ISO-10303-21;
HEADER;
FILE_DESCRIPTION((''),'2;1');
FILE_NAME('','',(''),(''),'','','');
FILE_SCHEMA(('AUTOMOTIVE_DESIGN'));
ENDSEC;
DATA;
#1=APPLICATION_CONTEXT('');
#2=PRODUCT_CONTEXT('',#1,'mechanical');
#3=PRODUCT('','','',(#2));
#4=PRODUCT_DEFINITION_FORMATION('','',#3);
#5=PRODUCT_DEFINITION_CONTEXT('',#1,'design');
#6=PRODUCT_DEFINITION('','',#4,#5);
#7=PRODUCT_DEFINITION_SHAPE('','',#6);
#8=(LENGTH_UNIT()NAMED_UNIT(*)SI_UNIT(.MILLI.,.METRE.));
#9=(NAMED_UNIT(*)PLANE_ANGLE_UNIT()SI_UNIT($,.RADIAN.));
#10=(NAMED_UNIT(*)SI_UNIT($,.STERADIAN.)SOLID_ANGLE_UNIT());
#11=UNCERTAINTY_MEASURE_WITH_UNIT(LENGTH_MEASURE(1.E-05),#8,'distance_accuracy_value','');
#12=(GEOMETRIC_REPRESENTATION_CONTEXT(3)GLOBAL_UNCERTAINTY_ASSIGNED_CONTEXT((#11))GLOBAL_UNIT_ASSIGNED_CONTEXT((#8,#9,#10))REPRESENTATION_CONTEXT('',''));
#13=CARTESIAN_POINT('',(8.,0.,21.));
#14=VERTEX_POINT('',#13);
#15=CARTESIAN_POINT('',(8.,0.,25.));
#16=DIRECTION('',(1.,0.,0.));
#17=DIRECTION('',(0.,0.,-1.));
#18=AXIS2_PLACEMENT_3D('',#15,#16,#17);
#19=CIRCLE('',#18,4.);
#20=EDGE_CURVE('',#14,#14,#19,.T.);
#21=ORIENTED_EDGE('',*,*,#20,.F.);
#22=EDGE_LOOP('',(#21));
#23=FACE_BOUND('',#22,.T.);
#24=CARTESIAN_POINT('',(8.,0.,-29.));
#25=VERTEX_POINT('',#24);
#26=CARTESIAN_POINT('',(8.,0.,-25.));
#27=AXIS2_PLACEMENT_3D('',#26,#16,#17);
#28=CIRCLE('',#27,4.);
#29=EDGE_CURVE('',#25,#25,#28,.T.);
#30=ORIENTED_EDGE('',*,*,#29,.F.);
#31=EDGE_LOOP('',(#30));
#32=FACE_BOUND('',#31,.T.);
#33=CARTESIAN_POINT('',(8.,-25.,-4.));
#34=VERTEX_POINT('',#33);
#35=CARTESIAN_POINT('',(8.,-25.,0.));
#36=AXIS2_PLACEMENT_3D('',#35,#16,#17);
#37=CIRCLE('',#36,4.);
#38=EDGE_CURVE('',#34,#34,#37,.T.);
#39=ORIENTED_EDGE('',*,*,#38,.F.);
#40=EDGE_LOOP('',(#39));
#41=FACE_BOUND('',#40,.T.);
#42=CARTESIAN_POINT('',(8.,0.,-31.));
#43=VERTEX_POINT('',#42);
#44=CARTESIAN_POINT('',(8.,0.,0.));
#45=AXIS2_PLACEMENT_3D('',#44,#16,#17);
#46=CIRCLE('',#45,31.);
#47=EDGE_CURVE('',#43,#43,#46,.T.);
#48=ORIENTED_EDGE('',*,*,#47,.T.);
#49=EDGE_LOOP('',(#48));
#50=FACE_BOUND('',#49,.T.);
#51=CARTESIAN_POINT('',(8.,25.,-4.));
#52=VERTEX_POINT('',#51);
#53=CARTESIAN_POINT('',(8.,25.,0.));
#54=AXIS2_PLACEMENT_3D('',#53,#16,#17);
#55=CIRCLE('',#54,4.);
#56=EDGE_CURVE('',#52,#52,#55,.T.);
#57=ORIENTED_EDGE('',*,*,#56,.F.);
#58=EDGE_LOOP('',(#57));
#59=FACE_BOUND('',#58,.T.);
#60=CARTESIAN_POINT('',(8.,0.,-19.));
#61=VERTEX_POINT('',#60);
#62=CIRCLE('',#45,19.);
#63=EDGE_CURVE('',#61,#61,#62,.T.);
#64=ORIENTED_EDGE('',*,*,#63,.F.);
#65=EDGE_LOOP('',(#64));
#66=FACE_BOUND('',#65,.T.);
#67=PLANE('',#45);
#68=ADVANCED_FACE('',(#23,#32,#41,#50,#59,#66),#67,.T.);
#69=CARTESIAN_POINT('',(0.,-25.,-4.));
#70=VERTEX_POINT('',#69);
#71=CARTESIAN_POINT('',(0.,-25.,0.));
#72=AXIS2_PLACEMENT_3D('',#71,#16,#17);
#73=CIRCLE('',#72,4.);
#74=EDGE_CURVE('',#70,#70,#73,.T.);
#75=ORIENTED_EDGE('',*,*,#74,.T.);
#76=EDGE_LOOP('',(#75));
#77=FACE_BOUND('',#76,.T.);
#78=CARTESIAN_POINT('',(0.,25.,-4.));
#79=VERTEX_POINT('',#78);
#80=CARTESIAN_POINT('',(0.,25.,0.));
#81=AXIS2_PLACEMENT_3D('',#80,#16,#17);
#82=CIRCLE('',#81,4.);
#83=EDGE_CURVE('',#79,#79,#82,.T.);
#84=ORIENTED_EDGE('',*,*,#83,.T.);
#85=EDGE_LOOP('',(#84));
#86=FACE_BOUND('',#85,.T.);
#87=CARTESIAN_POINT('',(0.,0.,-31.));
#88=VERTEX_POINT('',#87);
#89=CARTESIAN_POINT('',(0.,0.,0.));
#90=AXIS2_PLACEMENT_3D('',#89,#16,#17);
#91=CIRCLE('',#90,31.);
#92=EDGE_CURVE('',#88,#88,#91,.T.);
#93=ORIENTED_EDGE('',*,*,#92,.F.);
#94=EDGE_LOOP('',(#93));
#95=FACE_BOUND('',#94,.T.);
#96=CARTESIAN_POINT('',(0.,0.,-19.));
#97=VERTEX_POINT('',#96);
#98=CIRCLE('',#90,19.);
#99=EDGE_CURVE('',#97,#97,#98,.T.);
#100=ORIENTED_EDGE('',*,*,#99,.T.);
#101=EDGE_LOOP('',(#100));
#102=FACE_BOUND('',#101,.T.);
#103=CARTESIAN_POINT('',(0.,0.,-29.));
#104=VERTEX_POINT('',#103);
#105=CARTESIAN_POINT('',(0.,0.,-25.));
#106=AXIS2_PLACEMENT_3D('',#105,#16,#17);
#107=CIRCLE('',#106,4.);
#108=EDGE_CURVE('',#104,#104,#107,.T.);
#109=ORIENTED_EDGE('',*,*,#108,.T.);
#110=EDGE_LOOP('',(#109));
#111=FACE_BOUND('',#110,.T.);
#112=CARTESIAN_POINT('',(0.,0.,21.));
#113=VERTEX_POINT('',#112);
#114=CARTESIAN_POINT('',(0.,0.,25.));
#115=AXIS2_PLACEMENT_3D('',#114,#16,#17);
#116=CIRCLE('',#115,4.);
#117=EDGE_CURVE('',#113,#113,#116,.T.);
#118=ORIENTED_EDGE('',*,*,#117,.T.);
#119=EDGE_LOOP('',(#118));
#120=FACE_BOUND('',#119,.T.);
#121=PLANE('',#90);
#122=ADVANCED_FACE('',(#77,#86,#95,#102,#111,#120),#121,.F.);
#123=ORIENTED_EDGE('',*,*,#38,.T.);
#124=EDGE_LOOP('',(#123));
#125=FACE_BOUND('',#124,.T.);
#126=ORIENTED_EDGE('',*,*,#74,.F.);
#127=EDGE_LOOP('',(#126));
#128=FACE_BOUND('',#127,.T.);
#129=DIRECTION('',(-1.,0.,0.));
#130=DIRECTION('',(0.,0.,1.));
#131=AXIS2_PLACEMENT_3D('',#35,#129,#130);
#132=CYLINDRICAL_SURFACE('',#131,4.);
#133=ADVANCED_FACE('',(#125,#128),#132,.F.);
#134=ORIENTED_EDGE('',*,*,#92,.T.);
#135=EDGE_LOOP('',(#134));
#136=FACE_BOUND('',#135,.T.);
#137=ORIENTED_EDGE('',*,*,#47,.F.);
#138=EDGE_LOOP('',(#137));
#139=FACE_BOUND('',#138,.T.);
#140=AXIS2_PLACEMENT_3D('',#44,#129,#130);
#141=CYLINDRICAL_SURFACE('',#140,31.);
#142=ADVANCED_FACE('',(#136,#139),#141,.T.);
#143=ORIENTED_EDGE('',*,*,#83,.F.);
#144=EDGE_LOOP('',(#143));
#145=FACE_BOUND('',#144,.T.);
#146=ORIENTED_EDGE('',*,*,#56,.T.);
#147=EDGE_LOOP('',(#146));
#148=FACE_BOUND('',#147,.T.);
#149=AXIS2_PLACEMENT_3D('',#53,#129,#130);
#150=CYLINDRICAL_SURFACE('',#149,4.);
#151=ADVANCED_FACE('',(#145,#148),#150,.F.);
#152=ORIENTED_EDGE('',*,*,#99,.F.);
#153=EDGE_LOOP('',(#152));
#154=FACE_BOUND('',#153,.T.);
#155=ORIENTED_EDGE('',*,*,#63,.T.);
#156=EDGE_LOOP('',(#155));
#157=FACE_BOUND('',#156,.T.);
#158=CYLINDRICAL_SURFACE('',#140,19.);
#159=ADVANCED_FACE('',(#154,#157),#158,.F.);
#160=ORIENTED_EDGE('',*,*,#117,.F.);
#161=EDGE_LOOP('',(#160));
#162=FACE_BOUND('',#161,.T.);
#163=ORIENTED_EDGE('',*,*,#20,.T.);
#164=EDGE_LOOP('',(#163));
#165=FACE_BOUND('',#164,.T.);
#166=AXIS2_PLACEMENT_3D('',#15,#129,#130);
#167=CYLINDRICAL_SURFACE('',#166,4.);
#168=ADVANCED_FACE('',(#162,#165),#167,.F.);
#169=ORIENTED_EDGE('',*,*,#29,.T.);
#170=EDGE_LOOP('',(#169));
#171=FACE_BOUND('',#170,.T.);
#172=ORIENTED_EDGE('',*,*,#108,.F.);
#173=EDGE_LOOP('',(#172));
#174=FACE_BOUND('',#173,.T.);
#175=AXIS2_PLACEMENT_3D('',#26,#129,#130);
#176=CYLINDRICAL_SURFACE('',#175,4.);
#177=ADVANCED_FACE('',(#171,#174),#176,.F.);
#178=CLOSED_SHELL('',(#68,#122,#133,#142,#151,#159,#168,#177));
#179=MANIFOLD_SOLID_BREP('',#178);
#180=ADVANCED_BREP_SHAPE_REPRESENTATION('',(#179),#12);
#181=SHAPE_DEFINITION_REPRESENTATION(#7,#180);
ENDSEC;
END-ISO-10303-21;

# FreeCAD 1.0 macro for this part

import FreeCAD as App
import Part
import Sketcher
from FreeCAD import Vector

doc = App.newDocument("Part")
params = doc.addObject("Spreadsheet::Sheet", "Params")
for row, (alias, value) in enumerate([
    ("sketch1_diameter", "62 mm"),
    ("sketch1_diameter2", "8 mm"),
    ("sketch1_diameter3", "38 mm"),
    ("pad1_length", "8 mm"),
], start=1):
    params.set(f"A{row}", alias)
    params.set(f"B{row}", "=" + value)
    params.setAlias(f"B{row}", alias)

body = doc.addObject("PartDesign::Body", "Body")

# Sketch on YZ plane
sketch1 = body.newObject("Sketcher::SketchObject", "Sketch")
sketch1.AttachmentSupport = (doc.getObject("YZ_Plane"), [""])
sketch1.MapMode = "FlatFace"
sketch1.addGeometry(Part.Circle(Vector(0, 0, 0), Vector(0, 0, 1), 31), False)
sketch1.addGeometry(Part.Circle(Vector(-25, 0, 0), Vector(0, 0, 1), 4), False)
sketch1.addGeometry(Part.Circle(Vector(0, 25, 0), Vector(0, 0, 1), 4), False)
sketch1.addGeometry(Part.Circle(Vector(0, 0, 0), Vector(0, 0, 1), 19), False)
sketch1.addGeometry(Part.Circle(Vector(0, -25, 0), Vector(0, 0, 1), 4), False)
sketch1.addGeometry(Part.Circle(Vector(25, 0, 0), Vector(0, 0, 1), 4), False)
sketch1.addConstraint(Sketcher.Constraint("Coincident", 0, 3, -1, 1))
sketch1.addConstraint(Sketcher.Constraint("Coincident", 3, 3, -1, 1))
sketch1.addConstraint(Sketcher.Constraint("Equal", 1, 2))
sketch1.addConstraint(Sketcher.Constraint("Equal", 2, 4))
sketch1.addConstraint(Sketcher.Constraint("Equal", 4, 5))
sketch1.addConstraint(Sketcher.Constraint("Symmetric", 2, 3, 4, 3, -1, 1))
sketch1.addConstraint(Sketcher.Constraint("Symmetric", 1, 3, 5, 3, -1, 1))
sketch1.addConstraint(Sketcher.Constraint("PointOnObject", 1, 3, -1))
sketch1.addConstraint(Sketcher.Constraint("PointOnObject", 2, 3, -2))
sketch1.addConstraint(Sketcher.Constraint("Diameter", 0, 62.0))
sketch1.addConstraint(Sketcher.Constraint("Diameter", 1, 8.0))
sketch1.addConstraint(Sketcher.Constraint("Diameter", 3, 38.0))
sketch1.addConstraint(Sketcher.Constraint("DistanceX", 1, 3, -1, 1, 25.0))
sketch1.addConstraint(Sketcher.Constraint("DistanceY", -1, 1, 2, 3, 25.0))
sketch1.setExpression("Constraints[9]", "Params.sketch1_diameter")
sketch1.setExpression("Constraints[10]", "Params.sketch1_diameter2")
sketch1.setExpression("Constraints[11]", "Params.sketch1_diameter3")
pad1 = body.newObject("PartDesign::Pad", "Pad")
pad1.Profile = sketch1
pad1.setExpression("Length", "Params.pad1_length")

doc.recompute()
